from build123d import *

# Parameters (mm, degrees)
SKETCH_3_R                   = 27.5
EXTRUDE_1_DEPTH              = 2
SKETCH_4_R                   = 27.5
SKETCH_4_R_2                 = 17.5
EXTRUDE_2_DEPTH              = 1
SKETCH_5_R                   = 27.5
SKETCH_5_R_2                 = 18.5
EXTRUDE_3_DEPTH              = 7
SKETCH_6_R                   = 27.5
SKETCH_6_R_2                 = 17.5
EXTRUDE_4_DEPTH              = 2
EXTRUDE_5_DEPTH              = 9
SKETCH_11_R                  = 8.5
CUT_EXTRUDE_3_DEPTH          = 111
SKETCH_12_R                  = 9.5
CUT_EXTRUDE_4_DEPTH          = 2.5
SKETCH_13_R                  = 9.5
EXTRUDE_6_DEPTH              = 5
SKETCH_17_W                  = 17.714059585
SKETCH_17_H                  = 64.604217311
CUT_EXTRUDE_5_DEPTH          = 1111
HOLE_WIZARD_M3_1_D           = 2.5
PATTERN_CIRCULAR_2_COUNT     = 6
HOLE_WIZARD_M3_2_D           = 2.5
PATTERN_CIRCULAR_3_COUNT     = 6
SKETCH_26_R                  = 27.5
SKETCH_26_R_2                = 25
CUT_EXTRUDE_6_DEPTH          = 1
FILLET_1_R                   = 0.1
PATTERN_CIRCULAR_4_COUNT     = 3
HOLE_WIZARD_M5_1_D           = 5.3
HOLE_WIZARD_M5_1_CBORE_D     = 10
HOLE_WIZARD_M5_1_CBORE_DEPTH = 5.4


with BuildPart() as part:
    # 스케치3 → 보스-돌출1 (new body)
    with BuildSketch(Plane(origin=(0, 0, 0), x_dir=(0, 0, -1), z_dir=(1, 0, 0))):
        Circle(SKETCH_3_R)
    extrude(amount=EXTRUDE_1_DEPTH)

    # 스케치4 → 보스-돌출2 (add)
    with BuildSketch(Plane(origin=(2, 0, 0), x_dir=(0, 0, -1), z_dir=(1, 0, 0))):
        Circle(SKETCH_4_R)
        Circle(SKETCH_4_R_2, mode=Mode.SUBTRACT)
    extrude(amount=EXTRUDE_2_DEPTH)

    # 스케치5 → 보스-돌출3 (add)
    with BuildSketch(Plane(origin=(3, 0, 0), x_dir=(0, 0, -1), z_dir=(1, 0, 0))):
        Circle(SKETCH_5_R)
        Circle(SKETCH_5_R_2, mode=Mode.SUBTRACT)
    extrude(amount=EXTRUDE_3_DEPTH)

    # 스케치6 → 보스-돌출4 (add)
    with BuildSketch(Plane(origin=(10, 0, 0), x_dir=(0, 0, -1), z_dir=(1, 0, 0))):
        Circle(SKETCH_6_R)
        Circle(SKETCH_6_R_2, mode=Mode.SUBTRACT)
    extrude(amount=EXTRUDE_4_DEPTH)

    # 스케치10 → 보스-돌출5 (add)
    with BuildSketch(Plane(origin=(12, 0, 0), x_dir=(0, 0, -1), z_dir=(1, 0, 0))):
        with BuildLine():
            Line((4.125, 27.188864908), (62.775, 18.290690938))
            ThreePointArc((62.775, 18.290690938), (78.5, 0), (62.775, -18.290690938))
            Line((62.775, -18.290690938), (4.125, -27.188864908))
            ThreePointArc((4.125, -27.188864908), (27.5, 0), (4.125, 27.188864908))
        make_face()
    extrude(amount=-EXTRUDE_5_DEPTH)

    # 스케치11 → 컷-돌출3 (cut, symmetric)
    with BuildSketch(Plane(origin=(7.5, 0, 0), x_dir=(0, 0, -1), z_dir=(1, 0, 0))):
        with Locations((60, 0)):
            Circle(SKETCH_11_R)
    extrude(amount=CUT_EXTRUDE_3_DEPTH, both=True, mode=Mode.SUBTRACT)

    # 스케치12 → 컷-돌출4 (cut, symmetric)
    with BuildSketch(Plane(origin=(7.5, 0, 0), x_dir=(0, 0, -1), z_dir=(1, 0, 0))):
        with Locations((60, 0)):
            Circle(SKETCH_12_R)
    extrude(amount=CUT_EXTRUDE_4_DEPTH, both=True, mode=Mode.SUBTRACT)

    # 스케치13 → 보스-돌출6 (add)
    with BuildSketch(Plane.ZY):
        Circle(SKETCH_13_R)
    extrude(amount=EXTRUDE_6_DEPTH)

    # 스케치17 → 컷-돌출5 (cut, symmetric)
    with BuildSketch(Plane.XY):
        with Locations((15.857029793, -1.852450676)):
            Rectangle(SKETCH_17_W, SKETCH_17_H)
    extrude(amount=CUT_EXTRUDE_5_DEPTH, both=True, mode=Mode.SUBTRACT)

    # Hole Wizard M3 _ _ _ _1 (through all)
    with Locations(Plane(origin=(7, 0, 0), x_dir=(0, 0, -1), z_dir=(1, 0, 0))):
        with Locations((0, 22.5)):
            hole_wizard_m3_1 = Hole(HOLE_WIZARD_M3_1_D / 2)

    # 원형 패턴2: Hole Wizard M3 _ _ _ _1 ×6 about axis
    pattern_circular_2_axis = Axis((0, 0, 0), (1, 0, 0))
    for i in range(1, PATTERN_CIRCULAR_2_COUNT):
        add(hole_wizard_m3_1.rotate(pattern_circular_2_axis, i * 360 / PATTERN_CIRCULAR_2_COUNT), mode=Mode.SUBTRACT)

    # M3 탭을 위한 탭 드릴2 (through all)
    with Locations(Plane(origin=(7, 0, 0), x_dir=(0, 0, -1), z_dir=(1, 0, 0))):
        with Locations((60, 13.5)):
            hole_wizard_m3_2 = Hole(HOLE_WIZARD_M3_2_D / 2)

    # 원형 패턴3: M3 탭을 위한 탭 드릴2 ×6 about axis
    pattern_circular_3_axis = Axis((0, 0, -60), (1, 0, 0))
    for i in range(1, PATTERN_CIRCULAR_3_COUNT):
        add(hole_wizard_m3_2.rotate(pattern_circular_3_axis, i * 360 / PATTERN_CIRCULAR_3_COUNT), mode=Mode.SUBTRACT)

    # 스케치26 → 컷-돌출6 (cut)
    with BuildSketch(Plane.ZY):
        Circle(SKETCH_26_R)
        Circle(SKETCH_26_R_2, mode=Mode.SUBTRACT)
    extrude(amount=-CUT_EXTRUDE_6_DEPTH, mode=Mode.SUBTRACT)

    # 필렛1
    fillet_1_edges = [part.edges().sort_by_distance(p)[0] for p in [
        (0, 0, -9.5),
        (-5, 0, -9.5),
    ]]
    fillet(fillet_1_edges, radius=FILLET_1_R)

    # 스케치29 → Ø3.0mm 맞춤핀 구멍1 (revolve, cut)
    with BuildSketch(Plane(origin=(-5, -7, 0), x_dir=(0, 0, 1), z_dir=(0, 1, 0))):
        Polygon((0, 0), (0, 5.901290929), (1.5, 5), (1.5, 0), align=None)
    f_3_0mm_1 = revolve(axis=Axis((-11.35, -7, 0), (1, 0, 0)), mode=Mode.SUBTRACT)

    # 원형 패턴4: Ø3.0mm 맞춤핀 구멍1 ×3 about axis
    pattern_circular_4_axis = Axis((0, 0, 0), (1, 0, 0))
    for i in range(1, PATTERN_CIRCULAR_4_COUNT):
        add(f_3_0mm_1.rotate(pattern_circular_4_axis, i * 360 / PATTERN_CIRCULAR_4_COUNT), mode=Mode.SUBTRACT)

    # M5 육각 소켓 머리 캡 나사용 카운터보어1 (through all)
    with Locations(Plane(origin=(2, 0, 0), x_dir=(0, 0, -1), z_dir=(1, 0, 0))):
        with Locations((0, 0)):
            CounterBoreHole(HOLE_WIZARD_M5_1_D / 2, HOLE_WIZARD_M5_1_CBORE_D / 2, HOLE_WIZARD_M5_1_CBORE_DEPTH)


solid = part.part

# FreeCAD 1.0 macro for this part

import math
import FreeCAD as App
import Part
import Sketcher
Q = App.Units.Quantity


def edges_at(feature, points):
    """Names of the edges that pass closest to the given points."""
    edges = feature.Shape.Edges
    near = lambda p: min(range(len(edges)), key=lambda i: edges[i].distToShape(Part.Vertex(*p))[0])
    return sorted({f"Edge{near(p) + 1}" for p in points})


def add_polygon(sketch, points):
    """Adds a closed chain of lines whose ends are joined by coincident constraints."""
    first, n = sketch.GeometryCount, len(points)
    for a, b in zip(points, points[1:] + points[:1]):
        sketch.addGeometry(Part.LineSegment(App.Vector(*a, 0), App.Vector(*b, 0)), False)
    for i in range(n):
        sketch.addConstraint(Sketcher.Constraint("Coincident", first + i, 2, first + (i + 1) % n, 1))

doc = App.newDocument("Part")
body = doc.addObject("PartDesign::Body", "Body")

# Sketch on YZ plane
sketch1 = body.newObject("Sketcher::SketchObject", "Sketch")
sketch1.AttachmentSupport = (doc.getObject("YZ_Plane"), [""])
sketch1.MapMode = "FlatFace"
sketch1.addGeometry(Part.Circle(App.Vector(0, 0, 0), App.Vector(0, 0, 1), 28), False)
sketch1.addConstraint([
    Sketcher.Constraint("Coincident", 0, 3, -1, 1),
    Sketcher.Constraint("Diameter", 0, 55.0),
])
pad1 = body.newObject("PartDesign::Pad", "Pad")
pad1.Profile = sketch1
pad1.Length = 2

# Sketch on YZ plane
sketch2 = body.newObject("Sketcher::SketchObject", "Sketch001")
sketch2.AttachmentSupport = (doc.getObject("YZ_Plane"), [""])
sketch2.MapMode = "FlatFace"
sketch2.AttachmentOffset = App.Placement(App.Vector(0, 0, 2), App.Rotation())
sketch2.addGeometry([
    Part.Circle(App.Vector(0, 0, 0), App.Vector(0, 0, 1), 28),
    Part.Circle(App.Vector(0, 0, 0), App.Vector(0, 0, 1), 18),
], False)
sketch2.addConstraint([
    Sketcher.Constraint("Coincident", 0, 3, -1, 1),
    Sketcher.Constraint("Coincident", 1, 3, -1, 1),
    Sketcher.Constraint("Diameter", 0, 55.0),
    Sketcher.Constraint("Diameter", 1, 35.0),
])
pad2 = body.newObject("PartDesign::Pad", "Pad001")
pad2.Profile = sketch2
pad2.Length = 1

# Sketch on YZ plane
sketch3 = body.newObject("Sketcher::SketchObject", "Sketch002")
sketch3.AttachmentSupport = (doc.getObject("YZ_Plane"), [""])
sketch3.MapMode = "FlatFace"
sketch3.AttachmentOffset = App.Placement(App.Vector(0, 0, 3), App.Rotation())
sketch3.addGeometry([
    Part.Circle(App.Vector(0, 0, 0), App.Vector(0, 0, 1), 28),
    Part.Circle(App.Vector(0, 0, 0), App.Vector(0, 0, 1), 18),
], False)
sketch3.addConstraint([
    Sketcher.Constraint("Coincident", 0, 3, -1, 1),
    Sketcher.Constraint("Coincident", 1, 3, -1, 1),
    Sketcher.Constraint("Diameter", 0, 55.0),
    Sketcher.Constraint("Diameter", 1, 37.0),
])
pad3 = body.newObject("PartDesign::Pad", "Pad002")
pad3.Profile = sketch3
pad3.Length = 7

# Sketch on YZ plane
sketch4 = body.newObject("Sketcher::SketchObject", "Sketch003")
sketch4.AttachmentSupport = (doc.getObject("YZ_Plane"), [""])
sketch4.MapMode = "FlatFace"
sketch4.AttachmentOffset = App.Placement(App.Vector(0, 0, 10), App.Rotation())
sketch4.addGeometry([
    Part.Circle(App.Vector(0, 0, 0), App.Vector(0, 0, 1), 28),
    Part.Circle(App.Vector(0, 0, 0), App.Vector(0, 0, 1), 18),
], False)
sketch4.addConstraint([
    Sketcher.Constraint("Coincident", 0, 3, -1, 1),
    Sketcher.Constraint("Coincident", 1, 3, -1, 1),
    Sketcher.Constraint("Diameter", 0, 55.0),
    Sketcher.Constraint("Diameter", 1, 35.0),
])
pad4 = body.newObject("PartDesign::Pad", "Pad003")
pad4.Profile = sketch4
pad4.Length = 2

# Sketch on YZ plane
sketch5 = body.newObject("Sketcher::SketchObject", "Sketch004")
sketch5.AttachmentSupport = (doc.getObject("YZ_Plane"), [""])
sketch5.MapMode = "FlatFace"
sketch5.AttachmentOffset = App.Placement(App.Vector(0, 0, 12), App.Rotation())
sketch5.addGeometry([
    Part.LineSegment(App.Vector(18, -63, 0), App.Vector(27, -4, 0)),
    Part.ArcOfCircle(Part.Circle(App.Vector(0, 0, 0), App.Vector(0, 0, 1), 28), math.radians(-171), math.radians(-9)),
    Part.LineSegment(App.Vector(-27, -4, 0), App.Vector(-18, -63, 0)),
    Part.ArcOfCircle(Part.Circle(App.Vector(0, -60, 0), App.Vector(0, 0, 1), 18), math.radians(-171), math.radians(-9)),
], False)
sketch5.addConstraint([
    Sketcher.Constraint("Tangent", 0, 2, 1, 2),
    Sketcher.Constraint("Tangent", 1, 1, 2, 1),
    Sketcher.Constraint("Tangent", 2, 2, 3, 1),
    Sketcher.Constraint("Tangent", 3, 2, 0, 1),
    Sketcher.Constraint("Coincident", 1, 3, -1, 1),
    Sketcher.Constraint("PointOnObject", 3, 3, -2),
    Sketcher.Constraint("Radius", 1, 27.5),
    Sketcher.Constraint("Radius", 3, 18.5),
    Sketcher.Constraint("DistanceY", 3, 3, -1, 1, 60.0),
])
pad5 = body.newObject("PartDesign::Pad", "Pad004")
pad5.Profile = sketch5
pad5.Length = 9
pad5.Reversed = True

# Sketch on YZ plane
sketch6 = body.newObject("Sketcher::SketchObject", "Sketch005")
sketch6.AttachmentSupport = (doc.getObject("YZ_Plane"), [""])
sketch6.MapMode = "FlatFace"
sketch6.AttachmentOffset = App.Placement(App.Vector(0, 0, 7.5), App.Rotation())
sketch6.addGeometry(Part.Circle(App.Vector(0, -60, 0), App.Vector(0, 0, 1), 8), False)
sketch6.addConstraint([
    Sketcher.Constraint("PointOnObject", 0, 3, -2),
    Sketcher.Constraint("Diameter", 0, 17.0),
    Sketcher.Constraint("DistanceY", 0, 3, -1, 1, 60.0),
])
pocket1 = body.newObject("PartDesign::Pocket", "Pocket")
pocket1.Profile = sketch6
pocket1.Length = 222
pocket1.Midplane = True

# Sketch on YZ plane
sketch7 = body.newObject("Sketcher::SketchObject", "Sketch006")
sketch7.AttachmentSupport = (doc.getObject("YZ_Plane"), [""])
sketch7.MapMode = "FlatFace"
sketch7.AttachmentOffset = App.Placement(App.Vector(0, 0, 7.5), App.Rotation())
sketch7.addGeometry(Part.Circle(App.Vector(0, -60, 0), App.Vector(0, 0, 1), 10), False)
sketch7.addConstraint([
    Sketcher.Constraint("PointOnObject", 0, 3, -2),
    Sketcher.Constraint("Diameter", 0, 19.0),
    Sketcher.Constraint("DistanceY", 0, 3, -1, 1, 60.0),
])
pocket2 = body.newObject("PartDesign::Pocket", "Pocket001")
pocket2.Profile = sketch7
pocket2.Length = 5
pocket2.Midplane = True

# Sketch on YZ plane
sketch8 = body.newObject("Sketcher::SketchObject", "Sketch007")
sketch8.AttachmentSupport = (doc.getObject("YZ_Plane"), [""])
sketch8.MapMode = "FlatFace"
sketch8.addGeometry(Part.Circle(App.Vector(0, 0, 0), App.Vector(0, 0, 1), 10), False)
sketch8.addConstraint([
    Sketcher.Constraint("Coincident", 0, 3, -1, 1),
    Sketcher.Constraint("Diameter", 0, 19.0),
])
pad6 = body.newObject("PartDesign::Pad", "Pad005")
pad6.Profile = sketch8
pad6.Length = 5
pad6.Reversed = True

# Sketch on XY plane
sketch9 = body.newObject("Sketcher::SketchObject", "Sketch008")
sketch9.AttachmentSupport = (doc.getObject("XY_Plane"), [""])
sketch9.MapMode = "FlatFace"
add_polygon(sketch9, [(7, 30), (7, -34), (25, -34), (25, 30)])  # lines 0-3
sketch9.addConstraint([
    Sketcher.Constraint("Vertical", 0),
    Sketcher.Constraint("Horizontal", 1),
    Sketcher.Constraint("Vertical", 2),
    Sketcher.Constraint("Horizontal", 3),
    Sketcher.Constraint("DistanceX", -1, 1, 0, 2, 7.0),
    Sketcher.Constraint("DistanceX", 1, 1, 1, 2, 17.71406),
    Sketcher.Constraint("DistanceY", 0, 2, 0, 1, 64.604217),
    Sketcher.Constraint("DistanceY", 0, 2, -1, 1, 34.154559),
])
pocket3 = body.newObject("PartDesign::Pocket", "Pocket002")
pocket3.Profile = sketch9
pocket3.Length = 2222
pocket3.Midplane = True

# Sketch on YZ plane
sketch10 = body.newObject("Sketcher::SketchObject", "Sketch009")
sketch10.AttachmentSupport = (doc.getObject("YZ_Plane"), [""])
sketch10.MapMode = "FlatFace"
sketch10.AttachmentOffset = App.Placement(App.Vector(0, 0, 7), App.Rotation())
sketch10.addGeometry(Part.Circle(App.Vector(22.5, 0, 0), App.Vector(0, 0, 1), 1.2), False)
sketch10.addConstraint([
    Sketcher.Constraint("PointOnObject", 0, 3, -1),
    Sketcher.Constraint("Diameter", 0, 2.5),
    Sketcher.Constraint("DistanceX", -1, 1, 0, 3, 22.5),
])
doc.recompute()
hole = body.newObject("PartDesign::Hole", "Hole")
hole.Profile = sketch10
hole.ThreadType = "None"
hole.Diameter = 2.5
hole.DepthType = "ThroughAll"
doc.recompute()

polarpattern = body.newObject("PartDesign::PolarPattern", "PolarPattern")
polarpattern.Originals = [hole]
polarpattern.Axis = (doc.getObject("X_Axis"), [""])
polarpattern.Angle = 360
polarpattern.Occurrences = 6
body.Tip = polarpattern

# Sketch on YZ plane
sketch11 = body.newObject("Sketcher::SketchObject", "Sketch010")
sketch11.AttachmentSupport = (doc.getObject("YZ_Plane"), [""])
sketch11.MapMode = "FlatFace"
sketch11.AttachmentOffset = App.Placement(App.Vector(0, 0, 7), App.Rotation())
sketch11.addGeometry(Part.Circle(App.Vector(13.5, -60, 0), App.Vector(0, 0, 1), 1.2), False)
sketch11.addConstraint([
    Sketcher.Constraint("Diameter", 0, 2.5),
    Sketcher.Constraint("DistanceY", 0, 3, -1, 1, 60.0),
    Sketcher.Constraint("DistanceX", -1, 1, 0, 3, 13.5),
])
doc.recompute()
hole2 = body.newObject("PartDesign::Hole", "Hole001")
hole2.Profile = sketch11
hole2.ThreadType = "None"
hole2.Diameter = 2.5
hole2.DepthType = "ThroughAll"
doc.recompute()

datumline = body.newObject("PartDesign::Line", "DatumLine")
datumline.Placement = App.Placement(App.Vector(0, 0, -60), App.Rotation(App.Vector(0, 0, 1), App.Vector(1, 0, 0)))
polarpattern2 = body.newObject("PartDesign::PolarPattern", "PolarPattern001")
polarpattern2.Originals = [hole2]
polarpattern2.Axis = (datumline, [""])
polarpattern2.Angle = 360
polarpattern2.Occurrences = 6
body.Tip = polarpattern2

# Sketch on YZ plane
sketch12 = body.newObject("Sketcher::SketchObject", "Sketch011")
sketch12.AttachmentSupport = (doc.getObject("YZ_Plane"), [""])
sketch12.MapMode = "FlatFace"
sketch12.addGeometry([
    Part.Circle(App.Vector(0, 0, 0), App.Vector(0, 0, 1), 28),
    Part.Circle(App.Vector(0, 0, 0), App.Vector(0, 0, 1), 25),
], False)
sketch12.addConstraint([
    Sketcher.Constraint("Coincident", 0, 3, -1, 1),
    Sketcher.Constraint("Coincident", 1, 3, -1, 1),
    Sketcher.Constraint("Diameter", 0, 55.0),
    Sketcher.Constraint("Diameter", 1, 50.0),
])
pocket4 = body.newObject("PartDesign::Pocket", "Pocket003")
pocket4.Profile = sketch12
pocket4.Length = 1
pocket4.Reversed = True
doc.recompute()

fillet = body.newObject("PartDesign::Fillet", "Fillet")
fillet.Base = (pocket4, edges_at(pocket4, [(0, 0, -9.5), (-5, 0, -9.5)]))
fillet.Radius = 0.1

# Sketch on XZ plane
sketch13 = body.newObject("Sketcher::SketchObject", "Sketch012")
sketch13.AttachmentSupport = (doc.getObject("XZ_Plane"), [""])
sketch13.MapMode = "FlatFace"
sketch13.AttachmentOffset = App.Placement(App.Vector(0, 0, 7), App.Rotation())
add_polygon(sketch13, [(0.9, 0), (-5, 0), (-5, 1.5), (0, 1.5)])  # lines 0-3
sketch13.addConstraint([
    Sketcher.Constraint("Horizontal", 0),
    Sketcher.Constraint("Vertical", 1),
    Sketcher.Constraint("Horizontal", 2),
    Sketcher.Constraint("PointOnObject", 0, 2, -1),
    Sketcher.Constraint("PointOnObject", 2, 2, -2),
    Sketcher.Constraint("DistanceX", 2, 1, 2, 2, 5.0),
    Sketcher.Constraint("Angle", 3, Q("-59 deg")),
    Sketcher.Constraint("DistanceY", 1, 1, 1, 2, 1.5),
])
groove = body.newObject("PartDesign::Groove", "Groove")
groove.Profile = sketch13
groove.ReferenceAxis = (sketch13, ["H_Axis"])
groove.Angle = 360
doc.recompute()

polarpattern3 = body.newObject("PartDesign::PolarPattern", "PolarPattern002")
polarpattern3.Originals = [groove]
polarpattern3.Axis = (doc.getObject("X_Axis"), [""])
polarpattern3.Angle = 360
polarpattern3.Occurrences = 3
body.Tip = polarpattern3

# Sketch on YZ plane
sketch14 = body.newObject("Sketcher::SketchObject", "Sketch013")
sketch14.AttachmentSupport = (doc.getObject("YZ_Plane"), [""])
sketch14.MapMode = "FlatFace"
sketch14.AttachmentOffset = App.Placement(App.Vector(0, 0, 2), App.Rotation())
sketch14.addGeometry(Part.Circle(App.Vector(0, 0, 0), App.Vector(0, 0, 1), 2.6), False)
sketch14.addConstraint([
    Sketcher.Constraint("Coincident", 0, 3, -1, 1),
    Sketcher.Constraint("Diameter", 0, 5.3),
])
doc.recompute()
hole3 = body.newObject("PartDesign::Hole", "Hole002")
hole3.Profile = sketch14
hole3.ThreadType = "None"
hole3.Diameter = 5.3
hole3.DepthType = "ThroughAll"
hole3.HoleCutType = "Counterbore"
hole3.HoleCutDiameter = 10
hole3.HoleCutDepth = 5.4

doc.recompute()
